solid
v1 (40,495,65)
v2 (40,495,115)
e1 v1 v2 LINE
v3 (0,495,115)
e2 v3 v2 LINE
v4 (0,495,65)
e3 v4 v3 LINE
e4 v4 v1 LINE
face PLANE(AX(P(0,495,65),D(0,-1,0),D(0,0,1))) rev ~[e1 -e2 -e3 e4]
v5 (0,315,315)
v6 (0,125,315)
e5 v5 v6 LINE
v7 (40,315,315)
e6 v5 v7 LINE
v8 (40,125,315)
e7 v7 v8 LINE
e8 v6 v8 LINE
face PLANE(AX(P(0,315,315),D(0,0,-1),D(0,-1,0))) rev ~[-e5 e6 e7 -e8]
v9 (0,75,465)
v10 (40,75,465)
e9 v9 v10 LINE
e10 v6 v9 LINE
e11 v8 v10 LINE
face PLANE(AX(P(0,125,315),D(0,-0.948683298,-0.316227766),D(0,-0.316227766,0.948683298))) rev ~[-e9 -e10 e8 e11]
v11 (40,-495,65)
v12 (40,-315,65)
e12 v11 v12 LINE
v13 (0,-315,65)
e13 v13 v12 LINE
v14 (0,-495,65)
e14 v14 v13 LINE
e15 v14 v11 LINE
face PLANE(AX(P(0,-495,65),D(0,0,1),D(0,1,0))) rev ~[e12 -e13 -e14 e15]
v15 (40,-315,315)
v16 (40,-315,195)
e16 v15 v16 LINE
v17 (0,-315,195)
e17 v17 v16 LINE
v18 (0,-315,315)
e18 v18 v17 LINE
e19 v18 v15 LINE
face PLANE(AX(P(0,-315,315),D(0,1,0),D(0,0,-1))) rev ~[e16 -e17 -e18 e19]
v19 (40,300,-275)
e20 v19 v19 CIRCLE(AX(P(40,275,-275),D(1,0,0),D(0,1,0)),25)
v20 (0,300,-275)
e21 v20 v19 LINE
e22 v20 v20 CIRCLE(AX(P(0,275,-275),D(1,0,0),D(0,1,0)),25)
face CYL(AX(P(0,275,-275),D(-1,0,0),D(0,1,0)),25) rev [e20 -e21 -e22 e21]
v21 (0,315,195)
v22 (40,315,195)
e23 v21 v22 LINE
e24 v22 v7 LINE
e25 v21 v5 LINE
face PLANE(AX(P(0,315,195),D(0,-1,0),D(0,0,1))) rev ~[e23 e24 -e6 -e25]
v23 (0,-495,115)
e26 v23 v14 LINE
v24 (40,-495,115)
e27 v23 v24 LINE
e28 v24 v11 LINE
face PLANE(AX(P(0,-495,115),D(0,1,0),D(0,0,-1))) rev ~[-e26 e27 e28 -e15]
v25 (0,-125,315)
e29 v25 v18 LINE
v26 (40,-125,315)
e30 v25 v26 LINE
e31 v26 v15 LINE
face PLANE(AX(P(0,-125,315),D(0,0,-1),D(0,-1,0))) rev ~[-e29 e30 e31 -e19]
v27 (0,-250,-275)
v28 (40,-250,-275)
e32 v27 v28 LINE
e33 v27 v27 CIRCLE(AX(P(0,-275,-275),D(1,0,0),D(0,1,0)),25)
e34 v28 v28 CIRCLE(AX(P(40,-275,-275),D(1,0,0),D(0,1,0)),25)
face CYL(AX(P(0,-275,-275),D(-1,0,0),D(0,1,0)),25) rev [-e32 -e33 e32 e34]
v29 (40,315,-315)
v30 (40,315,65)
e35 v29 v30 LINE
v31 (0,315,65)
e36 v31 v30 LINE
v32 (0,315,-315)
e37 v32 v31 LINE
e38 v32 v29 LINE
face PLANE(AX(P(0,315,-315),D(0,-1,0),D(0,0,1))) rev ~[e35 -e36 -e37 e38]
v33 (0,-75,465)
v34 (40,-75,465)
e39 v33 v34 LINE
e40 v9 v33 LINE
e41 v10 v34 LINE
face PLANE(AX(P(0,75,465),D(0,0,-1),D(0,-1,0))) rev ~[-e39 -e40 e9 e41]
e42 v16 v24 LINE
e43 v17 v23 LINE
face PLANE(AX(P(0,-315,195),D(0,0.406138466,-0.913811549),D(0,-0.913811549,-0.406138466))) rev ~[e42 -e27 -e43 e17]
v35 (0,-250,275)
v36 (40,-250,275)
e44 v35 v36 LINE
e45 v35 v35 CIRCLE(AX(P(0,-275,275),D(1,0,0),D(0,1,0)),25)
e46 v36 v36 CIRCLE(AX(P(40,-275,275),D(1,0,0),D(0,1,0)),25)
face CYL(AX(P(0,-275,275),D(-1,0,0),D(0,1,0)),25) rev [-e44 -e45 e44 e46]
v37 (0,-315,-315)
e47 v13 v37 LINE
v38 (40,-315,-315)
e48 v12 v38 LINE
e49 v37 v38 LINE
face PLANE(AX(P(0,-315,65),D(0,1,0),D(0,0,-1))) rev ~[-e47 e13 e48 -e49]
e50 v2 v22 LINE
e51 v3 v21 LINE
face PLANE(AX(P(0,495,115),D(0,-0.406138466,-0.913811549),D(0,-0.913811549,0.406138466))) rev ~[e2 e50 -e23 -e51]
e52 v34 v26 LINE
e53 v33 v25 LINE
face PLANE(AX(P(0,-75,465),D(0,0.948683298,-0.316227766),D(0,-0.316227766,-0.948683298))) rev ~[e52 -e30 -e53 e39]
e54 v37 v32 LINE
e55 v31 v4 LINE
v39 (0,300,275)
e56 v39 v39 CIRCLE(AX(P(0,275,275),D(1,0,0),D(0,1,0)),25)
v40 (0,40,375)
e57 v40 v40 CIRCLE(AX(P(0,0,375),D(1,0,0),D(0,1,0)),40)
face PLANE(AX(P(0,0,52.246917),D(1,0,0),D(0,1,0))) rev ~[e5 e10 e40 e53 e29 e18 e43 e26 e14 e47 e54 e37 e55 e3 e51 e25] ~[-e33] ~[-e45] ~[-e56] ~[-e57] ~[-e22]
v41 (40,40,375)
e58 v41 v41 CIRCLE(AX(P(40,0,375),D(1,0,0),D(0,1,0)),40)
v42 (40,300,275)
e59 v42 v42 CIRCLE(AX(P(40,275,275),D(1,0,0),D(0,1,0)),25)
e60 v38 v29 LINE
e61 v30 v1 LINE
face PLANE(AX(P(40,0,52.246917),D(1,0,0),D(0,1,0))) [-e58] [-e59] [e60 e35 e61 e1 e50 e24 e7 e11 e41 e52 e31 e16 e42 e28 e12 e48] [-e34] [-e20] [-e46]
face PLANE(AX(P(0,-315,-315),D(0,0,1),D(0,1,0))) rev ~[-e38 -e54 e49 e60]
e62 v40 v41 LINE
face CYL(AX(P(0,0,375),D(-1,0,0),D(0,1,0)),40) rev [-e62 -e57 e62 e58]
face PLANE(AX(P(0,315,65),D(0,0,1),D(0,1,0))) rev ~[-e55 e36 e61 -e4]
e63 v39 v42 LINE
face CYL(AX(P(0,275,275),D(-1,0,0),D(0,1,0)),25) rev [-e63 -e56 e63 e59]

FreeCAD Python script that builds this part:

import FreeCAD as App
import Part
import Sketcher
Q = App.Units.Quantity

doc = App.newDocument("Part")
params = doc.addObject("Spreadsheet::Sheet", "Params")
for row, (alias, value) in enumerate([
    ("sketch1_diameter", "50 mm"),
    ("sketch1_diameter2", "80 mm"),
    ("sketch1_width", "190 mm"),
    ("sketch1_width2", "180 mm"),
    ("sketch1_width3", "630 mm"),
    ("pad1_length", "40 mm"),
], start=1):
    params.set(f"A{row}", alias)
    params.set(f"B{row}", "=" + value)
    params.setAlias(f"B{row}", alias)

body = doc.addObject("PartDesign::Body", "Body")

sketch1 = body.newObject("Sketcher::SketchObject", "Sketch")
sketch1.AttachmentSupport = (doc.getObject("YZ_Plane"), [""])
sketch1.MapMode = "FlatFace"
sketch1.addGeometry([
    Part.LineSegment(App.Vector(-125, 315, 0), App.Vector(-315, 315, 0)),
    Part.LineSegment(App.Vector(-315, 315, 0), App.Vector(-315, 195, 0)),
    Part.LineSegment(App.Vector(-315, 195, 0), App.Vector(-495, 115, 0)),
    Part.LineSegment(App.Vector(-495, 115, 0), App.Vector(-495, 65, 0)),
    Part.LineSegment(App.Vector(-495, 65, 0), App.Vector(-315, 65, 0)),
    Part.LineSegment(App.Vector(-315, 65, 0), App.Vector(-315, -315, 0)),
    Part.LineSegment(App.Vector(-315, -315, 0), App.Vector(315, -315, 0)),
    Part.LineSegment(App.Vector(315, -315, 0), App.Vector(315, 65, 0)),
    Part.LineSegment(App.Vector(315, 65, 0), App.Vector(495, 65, 0)),
    Part.LineSegment(App.Vector(495, 65, 0), App.Vector(495, 115, 0)),
    Part.LineSegment(App.Vector(495, 115, 0), App.Vector(315, 195, 0)),
    Part.LineSegment(App.Vector(315, 195, 0), App.Vector(315, 315, 0)),
    Part.LineSegment(App.Vector(315, 315, 0), App.Vector(125, 315, 0)),
    Part.LineSegment(App.Vector(125, 315, 0), App.Vector(75, 465, 0)),
    Part.LineSegment(App.Vector(75, 465, 0), App.Vector(-75, 465, 0)),
    Part.LineSegment(App.Vector(-75, 465, 0), App.Vector(-125, 315, 0)),
    Part.Circle(App.Vector(-275, -275, 0), App.Vector(0, 0, 1), 25),
    Part.Circle(App.Vector(275, -275, 0), App.Vector(0, 0, 1), 25),
    Part.Circle(App.Vector(-275, 275, 0), App.Vector(0, 0, 1), 25),
    Part.Circle(App.Vector(0, 375, 0), App.Vector(0, 0, 1), 40),
    Part.Circle(App.Vector(275, 275, 0), App.Vector(0, 0, 1), 25),
], False)
sketch1.addConstraint([
    Sketcher.Constraint("Coincident", 0, 2, 1, 1),
    Sketcher.Constraint("Coincident", 1, 2, 2, 1),
    Sketcher.Constraint("Coincident", 2, 2, 3, 1),
    Sketcher.Constraint("Coincident", 3, 2, 4, 1),
    Sketcher.Constraint("Coincident", 4, 2, 5, 1),
    Sketcher.Constraint("Coincident", 5, 2, 6, 1),
    Sketcher.Constraint("Coincident", 6, 2, 7, 1),
    Sketcher.Constraint("Coincident", 7, 2, 8, 1),
    Sketcher.Constraint("Coincident", 8, 2, 9, 1),
    Sketcher.Constraint("Coincident", 9, 2, 10, 1),
    Sketcher.Constraint("Coincident", 10, 2, 11, 1),
    Sketcher.Constraint("Coincident", 11, 2, 12, 1),
    Sketcher.Constraint("Coincident", 12, 2, 13, 1),
    Sketcher.Constraint("Coincident", 13, 2, 14, 1),
    Sketcher.Constraint("Coincident", 14, 2, 15, 1),
    Sketcher.Constraint("Coincident", 15, 2, 0, 1),
    Sketcher.Constraint("Horizontal", 0),
    Sketcher.Constraint("Vertical", 1),
    Sketcher.Constraint("Vertical", 3),
    Sketcher.Constraint("Horizontal", 4),
    Sketcher.Constraint("Vertical", 5),
    Sketcher.Constraint("Horizontal", 6),
    Sketcher.Constraint("Vertical", 7),
    Sketcher.Constraint("Horizontal", 8),
    Sketcher.Constraint("Vertical", 9),
    Sketcher.Constraint("Vertical", 11),
    Sketcher.Constraint("Horizontal", 12),
    Sketcher.Constraint("Horizontal", 14),
    Sketcher.Constraint("Equal", 16, 17),
    Sketcher.Constraint("Equal", 17, 18),
    Sketcher.Constraint("Equal", 18, 20),
    Sketcher.Constraint("Symmetric", 17, 3, 18, 3, -1, 1),
    Sketcher.Constraint("Symmetric", 16, 3, 20, 3, -1, 1),
    Sketcher.Constraint("Symmetric", 0, 2, 6, 2, -1, 1),
    Sketcher.Constraint("Symmetric", 5, 2, 11, 2, -1, 1),
    Sketcher.Constraint("Symmetric", 16, 3, 17, 3, -2),
    Sketcher.Constraint("Symmetric", 4, 2, 7, 2, -2),
    Sketcher.Constraint("Symmetric", 2, 2, 9, 2, -2),
    Sketcher.Constraint("PointOnObject", 19, 3, -2),
    Sketcher.Constraint("Horizontal", 1, 2, 10, 2),
    Sketcher.Constraint("Equal", 0, 12),
    Sketcher.Constraint("Equal", 13, 15),
    Sketcher.Constraint("Diameter", 16, Q("50 mm")),
    Sketcher.Constraint("Diameter", 19, Q("80 mm")),
    Sketcher.Constraint("DistanceX", 0, 2, 0, 1, Q("190 mm")),
    Sketcher.Constraint("DistanceX", 4, 1, 4, 2, Q("180 mm")),
    Sketcher.Constraint("DistanceX", 6, 1, 6, 2, Q("630 mm")),
    Sketcher.Constraint("DistanceX", 14, 2, 14, 1, Q("150 mm")),
    Sketcher.Constraint("DistanceY", 1, 2, 1, 1, Q("120 mm")),
    Sketcher.Constraint("DistanceY", 3, 2, 3, 1, Q("50 mm")),
    Sketcher.Constraint("DistanceY", 5, 2, 5, 1, Q("380 mm")),
    Sketcher.Constraint("DistanceX", 16, 3, -1, 1, Q("275 mm")),
    Sketcher.Constraint("DistanceY", 16, 3, -1, 1, Q("275 mm")),
    Sketcher.Constraint("DistanceY", -1, 1, 19, 3, Q("375 mm")),
    Sketcher.Constraint("DistanceY", -1, 1, 0, 2, Q("315 mm")),
    Sketcher.Constraint("DistanceY", -1, 1, 13, 2, Q("465 mm")),
])
sketch1.setExpression("Constraints[42]", "Params.sketch1_diameter")
sketch1.setExpression("Constraints[43]", "Params.sketch1_diameter2")
sketch1.setExpression("Constraints[44]", "Params.sketch1_width")
sketch1.setExpression("Constraints[45]", "Params.sketch1_width2")
sketch1.setExpression("Constraints[46]", "Params.sketch1_width3")
pad1 = body.newObject("PartDesign::Pad", "Pad")
pad1.Profile = sketch1
pad1.setExpression("Length", "Params.pad1_length")

doc.recompute()
